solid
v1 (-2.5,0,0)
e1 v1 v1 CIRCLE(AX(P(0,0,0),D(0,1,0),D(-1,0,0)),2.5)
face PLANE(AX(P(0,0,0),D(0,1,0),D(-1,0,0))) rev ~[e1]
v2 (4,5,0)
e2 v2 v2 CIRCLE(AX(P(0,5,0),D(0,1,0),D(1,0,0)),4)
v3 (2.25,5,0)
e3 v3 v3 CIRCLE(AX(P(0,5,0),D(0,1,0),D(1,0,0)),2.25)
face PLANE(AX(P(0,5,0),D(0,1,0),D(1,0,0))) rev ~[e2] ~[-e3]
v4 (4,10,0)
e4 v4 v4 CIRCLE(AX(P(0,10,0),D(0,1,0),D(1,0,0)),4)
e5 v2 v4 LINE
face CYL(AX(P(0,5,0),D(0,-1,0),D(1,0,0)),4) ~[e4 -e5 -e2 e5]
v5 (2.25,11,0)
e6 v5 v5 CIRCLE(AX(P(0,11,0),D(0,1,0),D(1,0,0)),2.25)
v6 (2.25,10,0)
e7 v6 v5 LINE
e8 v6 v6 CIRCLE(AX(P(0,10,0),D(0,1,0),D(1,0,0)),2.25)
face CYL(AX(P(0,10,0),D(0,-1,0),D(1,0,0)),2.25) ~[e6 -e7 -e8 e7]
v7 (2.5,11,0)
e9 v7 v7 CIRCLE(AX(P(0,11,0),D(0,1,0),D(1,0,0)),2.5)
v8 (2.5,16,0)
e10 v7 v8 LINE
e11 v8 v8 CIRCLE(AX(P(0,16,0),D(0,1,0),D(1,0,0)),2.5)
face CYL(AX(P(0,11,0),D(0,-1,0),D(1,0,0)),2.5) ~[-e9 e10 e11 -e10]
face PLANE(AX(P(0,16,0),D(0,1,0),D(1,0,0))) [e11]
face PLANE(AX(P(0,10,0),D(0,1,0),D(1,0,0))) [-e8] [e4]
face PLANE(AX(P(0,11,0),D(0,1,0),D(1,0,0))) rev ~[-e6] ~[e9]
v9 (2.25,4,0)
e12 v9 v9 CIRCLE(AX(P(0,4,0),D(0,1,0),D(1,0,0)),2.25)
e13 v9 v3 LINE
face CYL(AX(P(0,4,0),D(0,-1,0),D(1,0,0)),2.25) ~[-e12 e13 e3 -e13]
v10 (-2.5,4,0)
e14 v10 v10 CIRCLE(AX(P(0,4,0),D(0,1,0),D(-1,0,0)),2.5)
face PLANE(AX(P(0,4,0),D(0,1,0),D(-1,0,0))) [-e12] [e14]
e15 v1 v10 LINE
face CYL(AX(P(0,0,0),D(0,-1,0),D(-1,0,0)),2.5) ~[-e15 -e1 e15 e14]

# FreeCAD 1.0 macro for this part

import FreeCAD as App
import Part
import Sketcher
Q = App.Units.Quantity

doc = App.newDocument("Part")
body = doc.addObject("PartDesign::Body", "Body")

# Sketch on XZ plane
sketch1 = body.newObject("Sketcher::SketchObject", "Sketch")
sketch1.AttachmentSupport = (doc.getObject("XZ_Plane"), [""])
sketch1.MapMode = "FlatFace"
sketch1.addGeometry(Part.Circle(App.Vector(0, 0, 0), App.Vector(0, 0, 1), 2.5), False)
sketch1.addConstraint(Sketcher.Constraint("Coincident", 0, 3, -1, 1))
sketch1.addConstraint(Sketcher.Constraint("Diameter", 0, Q("5 mm")))
pad1 = body.newObject("PartDesign::Pad", "Pad")
pad1.Profile = sketch1
pad1.Length = 4
pad1.Reversed = True

# Sketch on XZ plane
sketch2 = body.newObject("Sketcher::SketchObject", "Sketch001")
sketch2.AttachmentSupport = (doc.getObject("XZ_Plane"), [""])
sketch2.MapMode = "FlatFace"
sketch2.AttachmentOffset = App.Placement(App.Vector(0, 0, -4), App.Rotation())
sketch2.addGeometry(Part.Circle(App.Vector(0, 0, 0), App.Vector(0, 0, 1), 2.2), False)
sketch2.addConstraint(Sketcher.Constraint("Coincident", 0, 3, -1, 1))
sketch2.addConstraint(Sketcher.Constraint("Diameter", 0, Q("4.5 mm")))
pad2 = body.newObject("PartDesign::Pad", "Pad001")
pad2.Profile = sketch2
pad2.Length = 1
pad2.Reversed = True

# Sketch on XZ plane
sketch3 = body.newObject("Sketcher::SketchObject", "Sketch002")
sketch3.AttachmentSupport = (doc.getObject("XZ_Plane"), [""])
sketch3.MapMode = "FlatFace"
sketch3.AttachmentOffset = App.Placement(App.Vector(0, 0, -5), App.Rotation())
sketch3.addGeometry(Part.Circle(App.Vector(0, 0, 0), App.Vector(0, 0, 1), 4), False)
sketch3.addConstraint(Sketcher.Constraint("Coincident", 0, 3, -1, 1))
sketch3.addConstraint(Sketcher.Constraint("Diameter", 0, Q("8 mm")))
pad3 = body.newObject("PartDesign::Pad", "Pad002")
pad3.Profile = sketch3
pad3.Length = 5
pad3.Reversed = True

# Sketch on XZ plane
sketch4 = body.newObject("Sketcher::SketchObject", "Sketch003")
sketch4.AttachmentSupport = (doc.getObject("XZ_Plane"), [""])
sketch4.MapMode = "FlatFace"
sketch4.AttachmentOffset = App.Placement(App.Vector(0, 0, -10), App.Rotation())
sketch4.addGeometry(Part.Circle(App.Vector(0, 0, 0), App.Vector(0, 0, 1), 2.2), False)
sketch4.addConstraint(Sketcher.Constraint("Coincident", 0, 3, -1, 1))
sketch4.addConstraint(Sketcher.Constraint("Diameter", 0, Q("4.5 mm")))
pad4 = body.newObject("PartDesign::Pad", "Pad003")
pad4.Profile = sketch4
pad4.Length = 1
pad4.Reversed = True

# Sketch on XZ plane
sketch5 = body.newObject("Sketcher::SketchObject", "Sketch004")
sketch5.AttachmentSupport = (doc.getObject("XZ_Plane"), [""])
sketch5.MapMode = "FlatFace"
sketch5.AttachmentOffset = App.Placement(App.Vector(0, 0, -11), App.Rotation())
sketch5.addGeometry(Part.Circle(App.Vector(0, 0, 0), App.Vector(0, 0, 1), 2.5), False)
sketch5.addConstraint(Sketcher.Constraint("Coincident", 0, 3, -1, 1))
sketch5.addConstraint(Sketcher.Constraint("Diameter", 0, Q("5 mm")))
pad5 = body.newObject("PartDesign::Pad", "Pad004")
pad5.Profile = sketch5
pad5.Length = 5
pad5.Reversed = True

doc.recompute()
